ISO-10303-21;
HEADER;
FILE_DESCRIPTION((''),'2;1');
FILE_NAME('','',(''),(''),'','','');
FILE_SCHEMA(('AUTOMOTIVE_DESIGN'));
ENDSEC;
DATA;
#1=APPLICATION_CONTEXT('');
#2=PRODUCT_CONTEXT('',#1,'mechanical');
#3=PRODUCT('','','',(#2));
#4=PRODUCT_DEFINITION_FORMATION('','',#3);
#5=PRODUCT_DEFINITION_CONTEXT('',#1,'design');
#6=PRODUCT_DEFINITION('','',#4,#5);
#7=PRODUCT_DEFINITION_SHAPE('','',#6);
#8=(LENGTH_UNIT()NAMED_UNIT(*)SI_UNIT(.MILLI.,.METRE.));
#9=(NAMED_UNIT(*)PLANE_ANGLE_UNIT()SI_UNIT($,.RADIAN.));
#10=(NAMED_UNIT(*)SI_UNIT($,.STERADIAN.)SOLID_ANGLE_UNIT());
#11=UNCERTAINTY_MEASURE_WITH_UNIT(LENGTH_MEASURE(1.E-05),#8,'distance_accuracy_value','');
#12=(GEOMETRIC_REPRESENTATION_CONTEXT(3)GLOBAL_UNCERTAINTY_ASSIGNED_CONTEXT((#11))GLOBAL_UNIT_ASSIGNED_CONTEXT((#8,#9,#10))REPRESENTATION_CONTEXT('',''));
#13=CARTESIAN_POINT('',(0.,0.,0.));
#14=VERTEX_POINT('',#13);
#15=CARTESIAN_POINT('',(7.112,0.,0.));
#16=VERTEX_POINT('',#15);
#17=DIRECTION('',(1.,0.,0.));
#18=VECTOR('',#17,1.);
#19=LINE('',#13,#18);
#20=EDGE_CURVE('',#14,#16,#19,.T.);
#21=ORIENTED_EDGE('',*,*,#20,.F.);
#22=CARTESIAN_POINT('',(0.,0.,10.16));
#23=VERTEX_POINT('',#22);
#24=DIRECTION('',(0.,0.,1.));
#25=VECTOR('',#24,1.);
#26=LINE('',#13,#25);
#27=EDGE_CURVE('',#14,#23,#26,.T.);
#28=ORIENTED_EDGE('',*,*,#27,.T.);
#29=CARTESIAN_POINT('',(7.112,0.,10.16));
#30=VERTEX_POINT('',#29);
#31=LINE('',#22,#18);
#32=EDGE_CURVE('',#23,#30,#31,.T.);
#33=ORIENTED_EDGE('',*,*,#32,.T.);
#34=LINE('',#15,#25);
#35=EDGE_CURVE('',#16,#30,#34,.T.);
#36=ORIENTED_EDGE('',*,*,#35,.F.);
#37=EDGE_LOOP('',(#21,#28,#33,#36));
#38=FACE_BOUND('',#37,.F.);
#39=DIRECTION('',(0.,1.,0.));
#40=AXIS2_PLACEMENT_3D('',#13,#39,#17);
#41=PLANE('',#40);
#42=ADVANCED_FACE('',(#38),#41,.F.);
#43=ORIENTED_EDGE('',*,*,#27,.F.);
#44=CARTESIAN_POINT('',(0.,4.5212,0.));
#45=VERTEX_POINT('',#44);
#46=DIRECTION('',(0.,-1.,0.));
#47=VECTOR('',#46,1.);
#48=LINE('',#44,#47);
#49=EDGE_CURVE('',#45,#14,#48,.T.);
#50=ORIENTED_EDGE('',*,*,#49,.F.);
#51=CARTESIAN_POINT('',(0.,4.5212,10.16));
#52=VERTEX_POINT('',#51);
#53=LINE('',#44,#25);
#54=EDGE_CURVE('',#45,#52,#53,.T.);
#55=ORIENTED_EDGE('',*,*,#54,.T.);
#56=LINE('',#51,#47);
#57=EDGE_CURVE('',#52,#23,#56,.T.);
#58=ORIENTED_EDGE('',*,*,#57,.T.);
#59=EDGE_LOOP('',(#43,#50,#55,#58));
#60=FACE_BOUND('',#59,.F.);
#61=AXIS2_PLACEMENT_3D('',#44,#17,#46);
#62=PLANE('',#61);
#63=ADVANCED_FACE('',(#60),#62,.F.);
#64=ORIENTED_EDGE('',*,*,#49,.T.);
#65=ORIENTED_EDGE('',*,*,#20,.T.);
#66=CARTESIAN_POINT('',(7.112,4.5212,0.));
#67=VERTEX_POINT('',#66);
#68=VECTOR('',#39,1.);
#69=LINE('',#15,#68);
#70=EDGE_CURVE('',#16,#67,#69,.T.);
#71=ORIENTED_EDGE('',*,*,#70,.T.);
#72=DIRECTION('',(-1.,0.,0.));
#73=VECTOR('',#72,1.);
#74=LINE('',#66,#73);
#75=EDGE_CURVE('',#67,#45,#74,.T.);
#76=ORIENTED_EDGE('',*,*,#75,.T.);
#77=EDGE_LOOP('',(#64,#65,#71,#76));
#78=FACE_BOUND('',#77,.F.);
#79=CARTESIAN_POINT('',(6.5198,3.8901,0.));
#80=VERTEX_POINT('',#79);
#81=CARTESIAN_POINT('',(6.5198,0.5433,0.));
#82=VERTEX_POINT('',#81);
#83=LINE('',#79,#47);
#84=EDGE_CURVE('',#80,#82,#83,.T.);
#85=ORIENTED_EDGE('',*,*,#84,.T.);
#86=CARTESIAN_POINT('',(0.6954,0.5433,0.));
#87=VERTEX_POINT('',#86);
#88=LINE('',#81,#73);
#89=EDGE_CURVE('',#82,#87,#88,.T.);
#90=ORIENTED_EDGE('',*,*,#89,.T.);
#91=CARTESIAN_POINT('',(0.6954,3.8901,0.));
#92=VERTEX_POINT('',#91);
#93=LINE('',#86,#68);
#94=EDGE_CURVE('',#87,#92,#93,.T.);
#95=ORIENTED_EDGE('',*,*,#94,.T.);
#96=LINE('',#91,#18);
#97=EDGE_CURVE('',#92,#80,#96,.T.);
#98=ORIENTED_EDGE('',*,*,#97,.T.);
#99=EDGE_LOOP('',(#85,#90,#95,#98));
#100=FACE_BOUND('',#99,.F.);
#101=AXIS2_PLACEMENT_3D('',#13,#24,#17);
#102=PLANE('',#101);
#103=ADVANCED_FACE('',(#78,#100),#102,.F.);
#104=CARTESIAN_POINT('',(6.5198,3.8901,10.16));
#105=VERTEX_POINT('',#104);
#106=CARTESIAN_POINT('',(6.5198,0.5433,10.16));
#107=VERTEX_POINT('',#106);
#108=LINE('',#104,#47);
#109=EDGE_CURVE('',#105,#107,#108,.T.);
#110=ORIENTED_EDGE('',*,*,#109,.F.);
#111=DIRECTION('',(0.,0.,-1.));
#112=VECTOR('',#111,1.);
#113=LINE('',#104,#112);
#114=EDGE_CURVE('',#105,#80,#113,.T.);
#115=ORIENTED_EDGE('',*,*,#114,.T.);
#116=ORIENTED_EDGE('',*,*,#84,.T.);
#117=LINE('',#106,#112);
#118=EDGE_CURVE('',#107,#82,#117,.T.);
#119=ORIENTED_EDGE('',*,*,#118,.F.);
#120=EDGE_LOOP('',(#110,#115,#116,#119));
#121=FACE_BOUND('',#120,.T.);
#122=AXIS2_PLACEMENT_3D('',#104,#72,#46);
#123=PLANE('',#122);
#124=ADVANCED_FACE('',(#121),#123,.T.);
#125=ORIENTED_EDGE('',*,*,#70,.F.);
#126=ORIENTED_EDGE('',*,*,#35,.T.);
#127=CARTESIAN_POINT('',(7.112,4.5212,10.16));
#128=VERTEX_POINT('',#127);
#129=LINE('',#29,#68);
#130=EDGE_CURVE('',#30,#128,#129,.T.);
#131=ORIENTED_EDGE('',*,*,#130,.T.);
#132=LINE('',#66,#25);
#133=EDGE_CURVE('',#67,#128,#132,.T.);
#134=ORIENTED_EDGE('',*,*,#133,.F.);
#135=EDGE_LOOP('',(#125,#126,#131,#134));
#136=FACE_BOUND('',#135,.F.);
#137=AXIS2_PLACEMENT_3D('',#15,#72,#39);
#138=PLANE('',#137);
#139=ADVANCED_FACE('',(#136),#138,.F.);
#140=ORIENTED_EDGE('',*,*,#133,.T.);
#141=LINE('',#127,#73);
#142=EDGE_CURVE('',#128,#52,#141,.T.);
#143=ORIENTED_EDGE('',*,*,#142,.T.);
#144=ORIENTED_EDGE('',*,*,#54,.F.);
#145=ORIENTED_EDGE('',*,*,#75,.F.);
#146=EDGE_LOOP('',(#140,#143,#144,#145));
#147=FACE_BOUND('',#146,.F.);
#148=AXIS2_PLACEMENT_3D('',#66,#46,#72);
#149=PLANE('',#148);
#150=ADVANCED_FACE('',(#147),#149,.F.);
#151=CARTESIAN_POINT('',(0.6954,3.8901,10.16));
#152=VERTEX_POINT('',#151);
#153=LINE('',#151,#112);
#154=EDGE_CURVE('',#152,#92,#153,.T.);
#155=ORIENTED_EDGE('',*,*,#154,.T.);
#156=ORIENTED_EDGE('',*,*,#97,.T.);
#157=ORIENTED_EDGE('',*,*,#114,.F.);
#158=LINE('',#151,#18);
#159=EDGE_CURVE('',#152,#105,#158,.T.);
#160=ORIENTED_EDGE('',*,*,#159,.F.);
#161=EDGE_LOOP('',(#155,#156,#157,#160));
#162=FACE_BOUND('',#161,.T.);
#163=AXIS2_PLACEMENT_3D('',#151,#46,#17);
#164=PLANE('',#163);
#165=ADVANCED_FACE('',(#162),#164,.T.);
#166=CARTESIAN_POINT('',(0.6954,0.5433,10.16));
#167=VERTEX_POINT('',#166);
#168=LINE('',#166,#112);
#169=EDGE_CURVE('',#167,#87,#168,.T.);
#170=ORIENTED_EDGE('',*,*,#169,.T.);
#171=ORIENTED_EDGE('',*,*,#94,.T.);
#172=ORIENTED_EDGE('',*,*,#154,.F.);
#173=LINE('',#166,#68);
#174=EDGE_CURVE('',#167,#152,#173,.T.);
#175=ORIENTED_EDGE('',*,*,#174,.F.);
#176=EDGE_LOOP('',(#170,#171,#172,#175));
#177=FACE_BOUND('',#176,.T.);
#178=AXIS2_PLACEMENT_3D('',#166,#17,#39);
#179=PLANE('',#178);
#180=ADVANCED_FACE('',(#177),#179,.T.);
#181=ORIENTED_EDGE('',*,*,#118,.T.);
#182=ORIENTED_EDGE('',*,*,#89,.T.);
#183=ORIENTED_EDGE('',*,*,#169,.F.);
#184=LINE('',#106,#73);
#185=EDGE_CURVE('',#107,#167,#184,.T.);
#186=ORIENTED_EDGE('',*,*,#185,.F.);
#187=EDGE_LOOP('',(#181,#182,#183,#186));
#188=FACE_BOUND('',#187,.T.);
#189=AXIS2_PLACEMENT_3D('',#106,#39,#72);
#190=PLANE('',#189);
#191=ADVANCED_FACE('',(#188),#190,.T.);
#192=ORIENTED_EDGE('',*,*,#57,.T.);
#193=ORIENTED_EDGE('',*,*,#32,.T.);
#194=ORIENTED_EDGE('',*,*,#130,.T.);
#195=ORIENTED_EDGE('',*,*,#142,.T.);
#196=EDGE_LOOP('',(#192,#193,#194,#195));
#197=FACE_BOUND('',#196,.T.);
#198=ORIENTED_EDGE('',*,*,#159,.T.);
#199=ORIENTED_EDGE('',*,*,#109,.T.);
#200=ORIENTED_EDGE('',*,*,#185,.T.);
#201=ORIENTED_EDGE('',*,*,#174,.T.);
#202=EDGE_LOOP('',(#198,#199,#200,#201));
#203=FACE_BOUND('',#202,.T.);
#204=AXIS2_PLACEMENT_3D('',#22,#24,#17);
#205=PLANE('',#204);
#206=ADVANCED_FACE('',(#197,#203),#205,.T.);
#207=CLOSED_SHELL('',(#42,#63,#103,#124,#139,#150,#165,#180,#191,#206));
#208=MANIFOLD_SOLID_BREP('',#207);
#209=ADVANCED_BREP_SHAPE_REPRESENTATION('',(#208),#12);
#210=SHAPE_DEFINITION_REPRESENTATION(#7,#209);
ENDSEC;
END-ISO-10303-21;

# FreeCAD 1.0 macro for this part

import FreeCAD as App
import Part
import Sketcher
from FreeCAD import Vector
Q = App.Units.Quantity


def add_polygon(sketch, points):
    """Adds a closed chain of lines whose ends are joined by coincident constraints."""
    first, n = sketch.GeometryCount, len(points)
    for a, b in zip(points, points[1:] + points[:1]):
        sketch.addGeometry(Part.LineSegment(App.Vector(*a, 0), App.Vector(*b, 0)), False)
    for i in range(n):
        sketch.addConstraint(Sketcher.Constraint("Coincident", first + i, 2, first + (i + 1) % n, 1))

doc = App.newDocument("Part")
params = doc.addObject("Spreadsheet::Sheet", "Params")
for row, (alias, value) in enumerate([
    ("sketch1_width", "0.28 in"),
    ("sketch1_height", "0.178 in"),
    ("pad1_length", "0.4 in"),
    ("pocket1_length", "0.4 in"),
], start=1):
    params.set(f"A{row}", alias)
    params.set(f"B{row}", "=" + value)
    params.setAlias(f"B{row}", alias)

body = doc.addObject("PartDesign::Body", "Body")

sketch1 = body.newObject("Sketcher::SketchObject", "Sketch")
sketch1.AttachmentSupport = (doc.getObject("XY_Plane"), [""])
sketch1.MapMode = "FlatFace"
add_polygon(sketch1, [(0, 4.5), (0, 0), (7.1, 0), (7.1, 4.5)])
sketch1.addConstraint([
    Sketcher.Constraint("Vertical", 0),
    Sketcher.Constraint("Horizontal", 1),
    Sketcher.Constraint("Vertical", 2),
    Sketcher.Constraint("Horizontal", 3),
    Sketcher.Constraint("Coincident", 0, 2, -1, 1),
    Sketcher.Constraint("DistanceX", 1, 1, 1, 2, Q("0.28 in")),
    Sketcher.Constraint("DistanceY", 0, 2, 0, 1, Q("0.178 in")),
])
sketch1.setExpression("Constraints[9]", "Params.sketch1_width")
sketch1.setExpression("Constraints[10]", "Params.sketch1_height")
pad1 = body.newObject("PartDesign::Pad", "Pad")
pad1.Profile = sketch1
pad1.setExpression("Length", "Params.pad1_length")

sketch2 = body.newObject("Sketcher::SketchObject", "Sketch001")
sketch2.AttachmentSupport = (doc.getObject("XY_Plane"), [""])
sketch2.MapMode = "FlatFace"
sketch2.AttachmentOffset = App.Placement(Vector(0, 0, 0.4 * 25.4), App.Rotation())
add_polygon(sketch2, [(6.5, 3.9), (0.7, 3.9), (0.7, 0.5), (6.5, 0.5)])
sketch2.addConstraint([
    Sketcher.Constraint("Horizontal", 0),
    Sketcher.Constraint("Vertical", 1),
    Sketcher.Constraint("Horizontal", 2),
    Sketcher.Constraint("Vertical", 3),
    Sketcher.Constraint("DistanceX", 0, 2, 0, 1, Q("0.2293 in")),
    Sketcher.Constraint("DistanceY", 1, 2, 1, 1, 3.3468),
    Sketcher.Constraint("DistanceY", -1, 1, 1, 2, Q("0.0214 in")),
    Sketcher.Constraint("DistanceX", -1, 1, 0, 2, 0.6954),
])
pocket1 = body.newObject("PartDesign::Pocket", "Pocket")
pocket1.Profile = sketch2
pocket1.setExpression("Length", "Params.pocket1_length")

doc.recompute()
